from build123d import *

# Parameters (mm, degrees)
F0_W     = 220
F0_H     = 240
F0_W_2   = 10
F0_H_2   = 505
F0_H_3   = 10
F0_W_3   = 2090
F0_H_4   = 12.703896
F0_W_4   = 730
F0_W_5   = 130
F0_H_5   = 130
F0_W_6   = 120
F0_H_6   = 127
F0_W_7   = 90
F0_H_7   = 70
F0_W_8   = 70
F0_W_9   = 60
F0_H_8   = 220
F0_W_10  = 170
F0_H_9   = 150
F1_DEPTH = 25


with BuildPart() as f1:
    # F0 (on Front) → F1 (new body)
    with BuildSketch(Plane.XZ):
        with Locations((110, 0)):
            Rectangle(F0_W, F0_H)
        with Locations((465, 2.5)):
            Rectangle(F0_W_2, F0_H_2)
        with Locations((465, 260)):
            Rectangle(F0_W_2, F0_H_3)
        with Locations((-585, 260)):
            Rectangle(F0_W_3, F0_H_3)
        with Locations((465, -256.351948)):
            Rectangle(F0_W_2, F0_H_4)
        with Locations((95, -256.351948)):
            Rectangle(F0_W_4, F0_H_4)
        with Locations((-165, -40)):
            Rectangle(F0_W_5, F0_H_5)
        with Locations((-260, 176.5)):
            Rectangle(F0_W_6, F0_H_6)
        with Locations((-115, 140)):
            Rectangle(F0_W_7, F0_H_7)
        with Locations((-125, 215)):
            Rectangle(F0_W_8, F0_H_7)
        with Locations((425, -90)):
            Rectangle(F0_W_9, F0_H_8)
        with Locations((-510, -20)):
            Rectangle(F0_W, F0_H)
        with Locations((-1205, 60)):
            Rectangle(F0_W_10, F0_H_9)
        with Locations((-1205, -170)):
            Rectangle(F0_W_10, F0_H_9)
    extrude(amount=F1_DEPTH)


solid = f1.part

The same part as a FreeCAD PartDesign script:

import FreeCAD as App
import Part
import Sketcher
from FreeCAD import Vector
Q = App.Units.Quantity

doc = App.newDocument("Part")
body = doc.addObject("PartDesign::Body", "Body")
body.AllowCompound = True

# Sketch on XZ plane
sketch1 = doc.addObject("Sketcher::SketchObject", "Sketch")
body.addObject(sketch1)
sketch1.AttachmentSupport = (doc.XZ_Plane, [""])
sketch1.MapMode = "FlatFace"
sketch1.addGeometry(Part.LineSegment(Vector(0, 120, 0), Vector(0, -120, 0)), False)
sketch1.addGeometry(Part.LineSegment(Vector(0, -120, 0), Vector(220, -120, 0)), False)
sketch1.addGeometry(Part.LineSegment(Vector(220, -120, 0), Vector(220, 120, 0)), False)
sketch1.addGeometry(Part.LineSegment(Vector(220, 120, 0), Vector(0, 120, 0)), False)
sketch1.addGeometry(Part.LineSegment(Vector(470, 265, 0), Vector(-1630, 265, 0)), False)
sketch1.addGeometry(Part.LineSegment(Vector(-1630, 265, 0), Vector(-1630, 255, 0)), False)
sketch1.addGeometry(Part.LineSegment(Vector(-1630, 255, 0), Vector(460, 255, 0)), False)
sketch1.addGeometry(Part.LineSegment(Vector(460, 255, 0), Vector(460, -250, 0)), False)
sketch1.addGeometry(Part.LineSegment(Vector(460, -250, 0), Vector(-270, -250, 0)), False)
sketch1.addGeometry(Part.LineSegment(Vector(-270, -250, 0), Vector(-270, -263, 0)), False)
sketch1.addGeometry(Part.LineSegment(Vector(-270, -263, 0), Vector(470, -263, 0)), False)
sketch1.addGeometry(Part.LineSegment(Vector(470, -263, 0), Vector(470, 265, 0)), False)
sketch1.addGeometry(Part.LineSegment(Vector(-230, 25, 0), Vector(-230, -105, 0)), False)
sketch1.addGeometry(Part.LineSegment(Vector(-230, -105, 0), Vector(-100, -105, 0)), False)
sketch1.addGeometry(Part.LineSegment(Vector(-100, -105, 0), Vector(-100, 25, 0)), False)
sketch1.addGeometry(Part.LineSegment(Vector(-100, 25, 0), Vector(-230, 25, 0)), False)
sketch1.addGeometry(Part.LineSegment(Vector(-320, 240, 0), Vector(-320, 113, 0)), False)
sketch1.addGeometry(Part.LineSegment(Vector(-320, 113, 0), Vector(-200, 113, 0)), False)
sketch1.addGeometry(Part.LineSegment(Vector(-200, 113, 0), Vector(-200, 240, 0)), False)
sketch1.addGeometry(Part.LineSegment(Vector(-200, 240, 0), Vector(-320, 240, 0)), False)
sketch1.addGeometry(Part.LineSegment(Vector(-160, 175, 0), Vector(-160, 105, 0)), False)
sketch1.addGeometry(Part.LineSegment(Vector(-160, 105, 0), Vector(-70, 105, 0)), False)
sketch1.addGeometry(Part.LineSegment(Vector(-70, 105, 0), Vector(-70, 175, 0)), False)
sketch1.addGeometry(Part.LineSegment(Vector(-70, 175, 0), Vector(-160, 175, 0)), False)
sketch1.addGeometry(Part.LineSegment(Vector(-160, 250, 0), Vector(-160, 180, 0)), False)
sketch1.addGeometry(Part.LineSegment(Vector(-160, 180, 0), Vector(-90, 180, 0)), False)
sketch1.addGeometry(Part.LineSegment(Vector(-90, 180, 0), Vector(-90, 250, 0)), False)
sketch1.addGeometry(Part.LineSegment(Vector(-90, 250, 0), Vector(-160, 250, 0)), False)
sketch1.addGeometry(Part.LineSegment(Vector(395, 20, 0), Vector(395, -200, 0)), False)
sketch1.addGeometry(Part.LineSegment(Vector(395, -200, 0), Vector(455, -200, 0)), False)
sketch1.addGeometry(Part.LineSegment(Vector(455, -200, 0), Vector(455, 20, 0)), False)
sketch1.addGeometry(Part.LineSegment(Vector(455, 20, 0), Vector(395, 20, 0)), False)
sketch1.addGeometry(Part.LineSegment(Vector(-620, 100, 0), Vector(-620, -140, 0)), False)
sketch1.addGeometry(Part.LineSegment(Vector(-620, -140, 0), Vector(-400, -140, 0)), False)
sketch1.addGeometry(Part.LineSegment(Vector(-400, -140, 0), Vector(-400, 100, 0)), False)
sketch1.addGeometry(Part.LineSegment(Vector(-400, 100, 0), Vector(-620, 100, 0)), False)
sketch1.addGeometry(Part.LineSegment(Vector(-1290, 135, 0), Vector(-1290, -15, 0)), False)
sketch1.addGeometry(Part.LineSegment(Vector(-1290, -15, 0), Vector(-1120, -15, 0)), False)
sketch1.addGeometry(Part.LineSegment(Vector(-1120, -15, 0), Vector(-1120, 135, 0)), False)
sketch1.addGeometry(Part.LineSegment(Vector(-1120, 135, 0), Vector(-1290, 135, 0)), False)
sketch1.addGeometry(Part.LineSegment(Vector(-1290, -95, 0), Vector(-1290, -245, 0)), False)
sketch1.addGeometry(Part.LineSegment(Vector(-1290, -245, 0), Vector(-1120, -245, 0)), False)
sketch1.addGeometry(Part.LineSegment(Vector(-1120, -245, 0), Vector(-1120, -95, 0)), False)
sketch1.addGeometry(Part.LineSegment(Vector(-1120, -95, 0), Vector(-1290, -95, 0)), False)
sketch1.addConstraint(Sketcher.Constraint("Coincident", 0, 2, 1, 1))
sketch1.addConstraint(Sketcher.Constraint("Coincident", 1, 2, 2, 1))
sketch1.addConstraint(Sketcher.Constraint("Coincident", 2, 2, 3, 1))
sketch1.addConstraint(Sketcher.Constraint("Coincident", 3, 2, 0, 1))
sketch1.addConstraint(Sketcher.Constraint("Coincident", 4, 2, 5, 1))
sketch1.addConstraint(Sketcher.Constraint("Coincident", 5, 2, 6, 1))
sketch1.addConstraint(Sketcher.Constraint("Coincident", 6, 2, 7, 1))
sketch1.addConstraint(Sketcher.Constraint("Coincident", 7, 2, 8, 1))
sketch1.addConstraint(Sketcher.Constraint("Coincident", 8, 2, 9, 1))
sketch1.addConstraint(Sketcher.Constraint("Coincident", 9, 2, 10, 1))
sketch1.addConstraint(Sketcher.Constraint("Coincident", 10, 2, 11, 1))
sketch1.addConstraint(Sketcher.Constraint("Coincident", 11, 2, 4, 1))
sketch1.addConstraint(Sketcher.Constraint("Coincident", 12, 2, 13, 1))
sketch1.addConstraint(Sketcher.Constraint("Coincident", 13, 2, 14, 1))
sketch1.addConstraint(Sketcher.Constraint("Coincident", 14, 2, 15, 1))
sketch1.addConstraint(Sketcher.Constraint("Coincident", 15, 2, 12, 1))
sketch1.addConstraint(Sketcher.Constraint("Coincident", 16, 2, 17, 1))
sketch1.addConstraint(Sketcher.Constraint("Coincident", 17, 2, 18, 1))
sketch1.addConstraint(Sketcher.Constraint("Coincident", 18, 2, 19, 1))
sketch1.addConstraint(Sketcher.Constraint("Coincident", 19, 2, 16, 1))
sketch1.addConstraint(Sketcher.Constraint("Coincident", 20, 2, 21, 1))
sketch1.addConstraint(Sketcher.Constraint("Coincident", 21, 2, 22, 1))
sketch1.addConstraint(Sketcher.Constraint("Coincident", 22, 2, 23, 1))
sketch1.addConstraint(Sketcher.Constraint("Coincident", 23, 2, 20, 1))
sketch1.addConstraint(Sketcher.Constraint("Coincident", 24, 2, 25, 1))
sketch1.addConstraint(Sketcher.Constraint("Coincident", 25, 2, 26, 1))
sketch1.addConstraint(Sketcher.Constraint("Coincident", 26, 2, 27, 1))
sketch1.addConstraint(Sketcher.Constraint("Coincident", 27, 2, 24, 1))
sketch1.addConstraint(Sketcher.Constraint("Coincident", 28, 2, 29, 1))
sketch1.addConstraint(Sketcher.Constraint("Coincident", 29, 2, 30, 1))
sketch1.addConstraint(Sketcher.Constraint("Coincident", 30, 2, 31, 1))
sketch1.addConstraint(Sketcher.Constraint("Coincident", 31, 2, 28, 1))
sketch1.addConstraint(Sketcher.Constraint("Coincident", 32, 2, 33, 1))
sketch1.addConstraint(Sketcher.Constraint("Coincident", 33, 2, 34, 1))
sketch1.addConstraint(Sketcher.Constraint("Coincident", 34, 2, 35, 1))
sketch1.addConstraint(Sketcher.Constraint("Coincident", 35, 2, 32, 1))
sketch1.addConstraint(Sketcher.Constraint("Coincident", 36, 2, 37, 1))
sketch1.addConstraint(Sketcher.Constraint("Coincident", 37, 2, 38, 1))
sketch1.addConstraint(Sketcher.Constraint("Coincident", 38, 2, 39, 1))
sketch1.addConstraint(Sketcher.Constraint("Coincident", 39, 2, 36, 1))
sketch1.addConstraint(Sketcher.Constraint("Coincident", 40, 2, 41, 1))
sketch1.addConstraint(Sketcher.Constraint("Coincident", 41, 2, 42, 1))
sketch1.addConstraint(Sketcher.Constraint("Coincident", 42, 2, 43, 1))
sketch1.addConstraint(Sketcher.Constraint("Coincident", 43, 2, 40, 1))
sketch1.addConstraint(Sketcher.Constraint("Vertical", 0))
sketch1.addConstraint(Sketcher.Constraint("Horizontal", 1))
sketch1.addConstraint(Sketcher.Constraint("Vertical", 2))
sketch1.addConstraint(Sketcher.Constraint("Horizontal", 3))
sketch1.addConstraint(Sketcher.Constraint("Horizontal", 4))
sketch1.addConstraint(Sketcher.Constraint("Vertical", 5))
sketch1.addConstraint(Sketcher.Constraint("Horizontal", 6))
sketch1.addConstraint(Sketcher.Constraint("Vertical", 7))
sketch1.addConstraint(Sketcher.Constraint("Horizontal", 8))
sketch1.addConstraint(Sketcher.Constraint("Vertical", 9))
sketch1.addConstraint(Sketcher.Constraint("Horizontal", 10))
sketch1.addConstraint(Sketcher.Constraint("Vertical", 11))
sketch1.addConstraint(Sketcher.Constraint("Vertical", 12))
sketch1.addConstraint(Sketcher.Constraint("Horizontal", 13))
sketch1.addConstraint(Sketcher.Constraint("Vertical", 14))
sketch1.addConstraint(Sketcher.Constraint("Horizontal", 15))
sketch1.addConstraint(Sketcher.Constraint("Vertical", 16))
sketch1.addConstraint(Sketcher.Constraint("Horizontal", 17))
sketch1.addConstraint(Sketcher.Constraint("Vertical", 18))
sketch1.addConstraint(Sketcher.Constraint("Horizontal", 19))
sketch1.addConstraint(Sketcher.Constraint("Vertical", 20))
sketch1.addConstraint(Sketcher.Constraint("Horizontal", 21))
sketch1.addConstraint(Sketcher.Constraint("Vertical", 22))
sketch1.addConstraint(Sketcher.Constraint("Horizontal", 23))
sketch1.addConstraint(Sketcher.Constraint("Vertical", 24))
sketch1.addConstraint(Sketcher.Constraint("Horizontal", 25))
sketch1.addConstraint(Sketcher.Constraint("Vertical", 26))
sketch1.addConstraint(Sketcher.Constraint("Horizontal", 27))
sketch1.addConstraint(Sketcher.Constraint("Vertical", 28))
sketch1.addConstraint(Sketcher.Constraint("Horizontal", 29))
sketch1.addConstraint(Sketcher.Constraint("Vertical", 30))
sketch1.addConstraint(Sketcher.Constraint("Horizontal", 31))
sketch1.addConstraint(Sketcher.Constraint("Vertical", 32))
sketch1.addConstraint(Sketcher.Constraint("Horizontal", 33))
sketch1.addConstraint(Sketcher.Constraint("Vertical", 34))
sketch1.addConstraint(Sketcher.Constraint("Horizontal", 35))
sketch1.addConstraint(Sketcher.Constraint("Vertical", 36))
sketch1.addConstraint(Sketcher.Constraint("Horizontal", 37))
sketch1.addConstraint(Sketcher.Constraint("Vertical", 38))
sketch1.addConstraint(Sketcher.Constraint("Horizontal", 39))
sketch1.addConstraint(Sketcher.Constraint("Vertical", 40))
sketch1.addConstraint(Sketcher.Constraint("Horizontal", 41))
sketch1.addConstraint(Sketcher.Constraint("Vertical", 42))
sketch1.addConstraint(Sketcher.Constraint("Horizontal", 43))
sketch1.addConstraint(Sketcher.Constraint("Symmetric", 0, 2, 3, 2, -1, 1))
sketch1.addConstraint(Sketcher.Constraint("Vertical", 23, 2, 24, 2))
sketch1.addConstraint(Sketcher.Constraint("Vertical", 39, 2, 40, 2))
sketch1.addConstraint(Sketcher.Constraint("Vertical", 38, 2, 41, 2))
sketch1.addConstraint(Sketcher.Constraint("Equal", 3, 33))
sketch1.addConstraint(Sketcher.Constraint("Equal", 15, 12))
sketch1.addConstraint(Sketcher.Constraint("Equal", 27, 20))
sketch1.addConstraint(Sketcher.Constraint("Equal", 22, 24))
sketch1.addConstraint(Sketcher.Constraint("Equal", 35, 28))
sketch1.addConstraint(Sketcher.Constraint("Equal", 2, 32))
sketch1.addConstraint(Sketcher.Constraint("Equal", 38, 40))
sketch1.addConstraint(Sketcher.Constraint("DistanceX", 1, 1, 1, 2, Q("220 mm")))
sketch1.addConstraint(Sketcher.Constraint("DistanceX", 4, 2, 4, 1, Q("2100 mm")))
sketch1.addConstraint(Sketcher.Constraint("DistanceX", 6, 1, 6, 2, Q("2090 mm")))
sketch1.addConstraint(Sketcher.Constraint("DistanceX", 8, 2, 8, 1, Q("730 mm")))
sketch1.addConstraint(Sketcher.Constraint("DistanceX", 13, 1, 13, 2, Q("130 mm")))
sketch1.addConstraint(Sketcher.Constraint("DistanceX", 17, 1, 17, 2, Q("120 mm")))
sketch1.addConstraint(Sketcher.Constraint("DistanceX", 21, 1, 21, 2, Q("90 mm")))
sketch1.addConstraint(Sketcher.Constraint("DistanceX", 25, 1, 25, 2, Q("70 mm")))
sketch1.addConstraint(Sketcher.Constraint("DistanceX", 29, 1, 29, 2, Q("60 mm")))
sketch1.addConstraint(Sketcher.Constraint("DistanceX", 37, 1, 37, 2, Q("170 mm")))
sketch1.addConstraint(Sketcher.Constraint("DistanceY", 0, 2, 0, 1, Q("240 mm")))
sketch1.addConstraint(Sketcher.Constraint("DistanceY", 5, 2, 5, 1, Q("10 mm")))
sketch1.addConstraint(Sketcher.Constraint("DistanceY", 7, 2, 7, 1, Q("505 mm")))
sketch1.addConstraint(Sketcher.Constraint("DistanceY", 16, 2, 16, 1, Q("127 mm")))
sketch1.addConstraint(Sketcher.Constraint("DistanceY", 36, 2, 36, 1, Q("150 mm")))
sketch1.addConstraint(Sketcher.Constraint("DistanceX", 4, 2, -1, 1, Q("1630 mm")))
sketch1.addConstraint(Sketcher.Constraint("DistanceY", -1, 1, 4, 2, Q("265 mm")))
sketch1.addConstraint(Sketcher.Constraint("DistanceX", 12, 2, -1, 1, Q("230 mm")))
sketch1.addConstraint(Sketcher.Constraint("DistanceY", 12, 2, -1, 1, Q("105 mm")))
sketch1.addConstraint(Sketcher.Constraint("DistanceX", 16, 2, -1, 1, Q("320 mm")))
sketch1.addConstraint(Sketcher.Constraint("DistanceY", -1, 1, 16, 2, Q("113 mm")))
sketch1.addConstraint(Sketcher.Constraint("DistanceX", 20, 2, -1, 1, Q("160 mm")))
sketch1.addConstraint(Sketcher.Constraint("DistanceY", -1, 1, 20, 2, Q("105 mm")))
sketch1.addConstraint(Sketcher.Constraint("DistanceY", -1, 1, 24, 2, Q("180 mm")))
sketch1.addConstraint(Sketcher.Constraint("DistanceX", -1, 1, 28, 2, Q("395 mm")))
sketch1.addConstraint(Sketcher.Constraint("DistanceY", 28, 2, -1, 1, Q("200 mm")))
sketch1.addConstraint(Sketcher.Constraint("DistanceX", 32, 2, -1, 1, Q("620 mm")))
sketch1.addConstraint(Sketcher.Constraint("DistanceY", 32, 2, -1, 1, Q("140 mm")))
sketch1.addConstraint(Sketcher.Constraint("DistanceX", 36, 2, -1, 1, Q("1290 mm")))
sketch1.addConstraint(Sketcher.Constraint("DistanceY", 36, 2, -1, 1, Q("15 mm")))
sketch1.addConstraint(Sketcher.Constraint("DistanceY", 40, 2, -1, 1, Q("245 mm")))
sketch1.addConstraint(Sketcher.Constraint("DistanceY", 9, 2, 9, 1, Q("12.703896 mm")))
pad1 = doc.addObject("PartDesign::Pad", "Pad")
body.addObject(pad1)
pad1.Profile = sketch1
pad1.Length = 25

doc.recompute()
